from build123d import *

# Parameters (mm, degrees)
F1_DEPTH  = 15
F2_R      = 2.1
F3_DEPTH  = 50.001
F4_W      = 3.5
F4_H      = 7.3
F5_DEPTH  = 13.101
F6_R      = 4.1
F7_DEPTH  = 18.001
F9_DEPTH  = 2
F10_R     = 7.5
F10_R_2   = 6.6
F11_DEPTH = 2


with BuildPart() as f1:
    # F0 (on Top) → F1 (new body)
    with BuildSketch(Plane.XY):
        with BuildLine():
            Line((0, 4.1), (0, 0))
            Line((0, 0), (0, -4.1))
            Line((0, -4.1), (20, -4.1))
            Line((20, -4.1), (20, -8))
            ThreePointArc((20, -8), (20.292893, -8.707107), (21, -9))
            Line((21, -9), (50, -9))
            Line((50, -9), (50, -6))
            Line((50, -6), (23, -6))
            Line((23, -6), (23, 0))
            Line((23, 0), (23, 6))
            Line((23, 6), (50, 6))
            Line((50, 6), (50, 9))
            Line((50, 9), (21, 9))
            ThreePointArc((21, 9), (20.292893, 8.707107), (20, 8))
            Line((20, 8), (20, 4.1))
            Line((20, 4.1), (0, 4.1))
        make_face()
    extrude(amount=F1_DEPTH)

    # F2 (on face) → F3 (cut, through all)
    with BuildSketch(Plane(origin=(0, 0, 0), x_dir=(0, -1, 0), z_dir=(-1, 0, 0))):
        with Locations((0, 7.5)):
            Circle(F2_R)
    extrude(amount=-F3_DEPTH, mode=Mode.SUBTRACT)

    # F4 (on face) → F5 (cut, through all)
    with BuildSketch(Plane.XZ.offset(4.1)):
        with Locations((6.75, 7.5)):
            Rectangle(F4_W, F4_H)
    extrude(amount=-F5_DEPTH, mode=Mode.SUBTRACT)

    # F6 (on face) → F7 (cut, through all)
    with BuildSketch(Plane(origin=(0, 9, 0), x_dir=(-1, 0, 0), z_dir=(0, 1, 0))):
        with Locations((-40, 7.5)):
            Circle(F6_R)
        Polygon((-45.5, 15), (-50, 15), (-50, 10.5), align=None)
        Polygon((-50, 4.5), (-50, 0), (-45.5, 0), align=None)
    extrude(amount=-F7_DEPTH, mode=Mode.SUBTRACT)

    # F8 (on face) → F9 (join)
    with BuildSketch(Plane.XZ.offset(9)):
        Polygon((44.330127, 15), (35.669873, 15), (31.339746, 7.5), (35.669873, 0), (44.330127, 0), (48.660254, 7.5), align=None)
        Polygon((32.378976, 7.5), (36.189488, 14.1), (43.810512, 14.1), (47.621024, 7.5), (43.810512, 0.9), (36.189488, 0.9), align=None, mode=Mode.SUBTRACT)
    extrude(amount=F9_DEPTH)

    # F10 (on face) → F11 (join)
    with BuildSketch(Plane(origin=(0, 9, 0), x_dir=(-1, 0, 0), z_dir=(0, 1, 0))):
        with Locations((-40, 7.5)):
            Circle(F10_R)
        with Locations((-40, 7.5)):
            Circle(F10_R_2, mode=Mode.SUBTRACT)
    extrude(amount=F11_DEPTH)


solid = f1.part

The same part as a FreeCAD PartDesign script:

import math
import FreeCAD as App
import Part
import Sketcher
Q = App.Units.Quantity


def add_polygon(sketch, points):
    """Adds a closed chain of lines whose ends are joined by coincident constraints."""
    first, n = sketch.GeometryCount, len(points)
    for a, b in zip(points, points[1:] + points[:1]):
        sketch.addGeometry(Part.LineSegment(App.Vector(*a, 0), App.Vector(*b, 0)), False)
    for i in range(n):
        sketch.addConstraint(Sketcher.Constraint("Coincident", first + i, 2, first + (i + 1) % n, 1))

doc = App.newDocument("Part")
params = doc.addObject("Spreadsheet::Sheet", "Params")
for row, (alias, value) in enumerate([
    ("sketch1_radius", "0.999999 mm"),
    ("sketch1_width", "20 mm"),
    ("sketch1_width2", "29 mm"),
    ("sketch1_width3", "27 mm"),
    ("sketch1_height", "3 mm"),
    ("pad1_length", "15 mm"),
    ("sketch2_diameter", "4.2 mm"),
    ("sketch3_width", "3.5 mm"),
    ("sketch3_height", "7.3 mm"),
    ("sketch4_diameter", "8.2 mm"),
    ("sketch4_width", "4.5 mm"),
    ("pad2_length", "2 mm"),
    ("sketch6_diameter", "15 mm"),
    ("sketch6_diameter2", "13.2 mm"),
    ("pad3_length", "2 mm"),
], start=1):
    params.set(f"A{row}", alias)
    params.set(f"B{row}", "=" + value)
    params.setAlias(f"B{row}", alias)

body = doc.addObject("PartDesign::Body", "Body")

# Sketch on XY plane
sketch1 = body.newObject("Sketcher::SketchObject", "Sketch")
sketch1.AttachmentSupport = (doc.getObject("XY_Plane"), [""])
sketch1.MapMode = "FlatFace"
sketch1.addGeometry([
    Part.LineSegment(App.Vector(0, 4.1, 0), App.Vector(0, -4.1, 0)),  # 0
    Part.LineSegment(App.Vector(0, -4.1, 0), App.Vector(20, -4.1, 0)),  # 1
    Part.LineSegment(App.Vector(20, -4.1, 0), App.Vector(20, -8, 0)),  # 2
    Part.ArcOfCircle(Part.Circle(App.Vector(21, -8, 0), App.Vector(0, 0, 1), 1), math.radians(180), math.radians(270)),  # 3
    Part.LineSegment(App.Vector(21, -9, 0), App.Vector(50, -9, 0)),  # 4
    Part.LineSegment(App.Vector(50, -9, 0), App.Vector(50, -6, 0)),  # 5
    Part.LineSegment(App.Vector(50, -6, 0), App.Vector(23, -6, 0)),  # 6
    Part.LineSegment(App.Vector(23, -6, 0), App.Vector(23, 6, 0)),  # 7
    Part.LineSegment(App.Vector(23, 6, 0), App.Vector(50, 6, 0)),  # 8
    Part.LineSegment(App.Vector(50, 6, 0), App.Vector(50, 9, 0)),  # 9
    Part.LineSegment(App.Vector(50, 9, 0), App.Vector(21, 9, 0)),  # 10
    Part.ArcOfCircle(Part.Circle(App.Vector(21, 8, 0), App.Vector(0, 0, 1), 1), math.radians(90), math.radians(180)),  # 11
    Part.LineSegment(App.Vector(20, 8, 0), App.Vector(20, 4.1, 0)),  # 12
    Part.LineSegment(App.Vector(20, 4.1, 0), App.Vector(0, 4.1, 0)),  # 13
], False)
sketch1.addConstraint([
    Sketcher.Constraint("Coincident", 0, 2, 1, 1),
    Sketcher.Constraint("Coincident", 1, 2, 2, 1),
    Sketcher.Constraint("Tangent", 2, 2, 3, 1),
    Sketcher.Constraint("Tangent", 3, 2, 4, 1),
    Sketcher.Constraint("Coincident", 4, 2, 5, 1),
    Sketcher.Constraint("Coincident", 5, 2, 6, 1),
    Sketcher.Constraint("Coincident", 6, 2, 7, 1),
    Sketcher.Constraint("Coincident", 7, 2, 8, 1),
    Sketcher.Constraint("Coincident", 8, 2, 9, 1),
    Sketcher.Constraint("Coincident", 9, 2, 10, 1),
    Sketcher.Constraint("Tangent", 10, 2, 11, 1),
    Sketcher.Constraint("Tangent", 11, 2, 12, 1),
    Sketcher.Constraint("Coincident", 12, 2, 13, 1),
    Sketcher.Constraint("Coincident", 13, 2, 0, 1),
    Sketcher.Constraint("Vertical", 0),
    Sketcher.Constraint("Horizontal", 1),
    Sketcher.Constraint("Vertical", 2),
    Sketcher.Constraint("Horizontal", 4),
    Sketcher.Constraint("Vertical", 5),
    Sketcher.Constraint("Horizontal", 6),
    Sketcher.Constraint("Vertical", 7),
    Sketcher.Constraint("Horizontal", 8),
    Sketcher.Constraint("Vertical", 9),
    Sketcher.Constraint("Horizontal", 10),
    Sketcher.Constraint("Vertical", 12),
    Sketcher.Constraint("Horizontal", 13),
    Sketcher.Constraint("Equal", 3, 11),
    Sketcher.Constraint("Symmetric", 0, 2, 13, 2, -1, 1),
    Sketcher.Constraint("Symmetric", 3, 3, 11, 3, -1),
    Sketcher.Constraint("Symmetric", 5, 2, 8, 2, -1),
    Sketcher.Constraint("Radius", 3, 0.999999),
    Sketcher.Constraint("DistanceX", 1, 1, 1, 2, 20.0),
    Sketcher.Constraint("DistanceX", 4, 1, 4, 2, 29.0),
    Sketcher.Constraint("DistanceX", 6, 2, 6, 1, 27.0),
    Sketcher.Constraint("DistanceY", 5, 1, 5, 2, 3.0),
    Sketcher.Constraint("DistanceY", 7, 1, 7, 2, 12.0),
    Sketcher.Constraint("DistanceY", 0, 2, 0, 1, 8.2),
])
sketch1.setExpression("Constraints[30]", "Params.sketch1_radius")
sketch1.setExpression("Constraints[31]", "Params.sketch1_width")
sketch1.setExpression("Constraints[32]", "Params.sketch1_width2")
sketch1.setExpression("Constraints[33]", "Params.sketch1_width3")
sketch1.setExpression("Constraints[34]", "Params.sketch1_height")
pad1 = body.newObject("PartDesign::Pad", "Pad")
pad1.Profile = sketch1
pad1.setExpression("Length", "Params.pad1_length")

# Sketch on YZ plane
sketch2 = body.newObject("Sketcher::SketchObject", "Sketch001")
sketch2.AttachmentSupport = (doc.getObject("YZ_Plane"), [""])
sketch2.MapMode = "FlatFace"
sketch2.addGeometry(Part.Circle(App.Vector(0, 7.5, 0), App.Vector(0, 0, 1), 2.1), False)
sketch2.addConstraint([
    Sketcher.Constraint("PointOnObject", 0, 3, -2),
    Sketcher.Constraint("Diameter", 0, 4.2),
    Sketcher.Constraint("DistanceY", -1, 1, 0, 3, 7.5),
])
sketch2.setExpression("Constraints[1]", "Params.sketch2_diameter")
pocket1 = body.newObject("PartDesign::Pocket", "Pocket")
pocket1.Profile = sketch2
pocket1.Type = "ThroughAll"
pocket1.Reversed = True

# Sketch on XZ plane
sketch3 = body.newObject("Sketcher::SketchObject", "Sketch002")
sketch3.AttachmentSupport = (doc.getObject("XZ_Plane"), [""])
sketch3.MapMode = "FlatFace"
sketch3.AttachmentOffset = App.Placement(App.Vector(0, 0, 4.1), App.Rotation())
add_polygon(sketch3, [(5, 11.2), (5, 3.9), (8.5, 3.9), (8.5, 11.2)])  # lines 0-3
sketch3.addConstraint([
    Sketcher.Constraint("Vertical", 0),
    Sketcher.Constraint("Horizontal", 1),
    Sketcher.Constraint("Vertical", 2),
    Sketcher.Constraint("Horizontal", 3),
    Sketcher.Constraint("DistanceX", 1, 1, 1, 2, 3.5),
    Sketcher.Constraint("DistanceY", 0, 2, 0, 1, 7.3),
    Sketcher.Constraint("DistanceX", -1, 1, 0, 2, 5.0),
    Sketcher.Constraint("DistanceY", -1, 1, 0, 2, 3.85),
])
sketch3.setExpression("Constraints[8]", "Params.sketch3_width")
sketch3.setExpression("Constraints[9]", "Params.sketch3_height")
pocket2 = body.newObject("PartDesign::Pocket", "Pocket001")
pocket2.Profile = sketch3
pocket2.Type = "ThroughAll"

# Sketch on XZ plane
sketch4 = body.newObject("Sketcher::SketchObject", "Sketch003")
sketch4.AttachmentSupport = (doc.getObject("XZ_Plane"), [""])
sketch4.MapMode = "FlatFace"
sketch4.AttachmentOffset = App.Placement(App.Vector(0, 0, -9), App.Rotation())
sketch4.addGeometry(Part.Circle(App.Vector(40, 7.5, 0), App.Vector(0, 0, 1), 4.1), False)  # 0
add_polygon(sketch4, [(45.5, 15), (50, 15), (50, 10.5)])  # lines 1-3
add_polygon(sketch4, [(50, 4.5), (50, 0), (45.5, 0)])  # lines 4-6
sketch4.addConstraint([
    Sketcher.Constraint("Horizontal", 1),
    Sketcher.Constraint("Vertical", 2),
    Sketcher.Constraint("Vertical", 4),
    Sketcher.Constraint("Horizontal", 5),
    Sketcher.Constraint("PointOnObject", 4, 2, -1),
    Sketcher.Constraint("Perpendicular", 3, 6),
    Sketcher.Constraint("Vertical", 2, 2, 4, 2),
    Sketcher.Constraint("Vertical", 3, 2, 5, 2),
    Sketcher.Constraint("Equal", 5, 2),
    Sketcher.Constraint("Diameter", 0, 8.2),
    Sketcher.Constraint("DistanceX", 1, 1, 1, 2, 4.5),
    Sketcher.Constraint("DistanceX", -1, 1, 0, 3, 40.0),
    Sketcher.Constraint("DistanceX", -1, 1, 1, 2, 50.0),
    Sketcher.Constraint("DistanceY", -1, 1, 1, 2, 15.0),
    Sketcher.Constraint("DistanceY", 0, 3, 2, 2, 3.0),
])
sketch4.setExpression("Constraints[15]", "Params.sketch4_diameter")
sketch4.setExpression("Constraints[16]", "Params.sketch4_width")
pocket3 = body.newObject("PartDesign::Pocket", "Pocket002")
pocket3.Profile = sketch4
pocket3.Type = "ThroughAll"
pocket3.Reversed = True

# Sketch on XZ plane
sketch5 = body.newObject("Sketcher::SketchObject", "Sketch004")
sketch5.AttachmentSupport = (doc.getObject("XZ_Plane"), [""])
sketch5.MapMode = "FlatFace"
sketch5.AttachmentOffset = App.Placement(App.Vector(0, 0, 9), App.Rotation())
add_polygon(sketch5, [(44, 15), (36, 15), (31, 8), (36, 0), (44, 0), (49, 8)])  # lines 0-5
add_polygon(sketch5, [(36, 1), (32, 8), (36, 14), (44, 14), (48, 8), (44, 1)])  # lines 6-11
sketch5.addConstraint([
    Sketcher.Constraint("Horizontal", 0),
    Sketcher.Constraint("Horizontal", 3),
    Sketcher.Constraint("Horizontal", 8),
    Sketcher.Constraint("Horizontal", 11),
    Sketcher.Constraint("PointOnObject", 2, 2, -1),
    Sketcher.Constraint("Parallel", 1, 4),
    Sketcher.Constraint("Parallel", 2, 5),
    Sketcher.Constraint("Parallel", 5, 6),
    Sketcher.Constraint("Parallel", 4, 7),
    Sketcher.Constraint("Parallel", 6, 9),
    Sketcher.Constraint("Parallel", 7, 10),
    Sketcher.Constraint("Horizontal", 1, 2, 4, 2),
    Sketcher.Constraint("Horizontal", 4, 2, 6, 2),
    Sketcher.Constraint("Horizontal", 6, 2, 9, 2),
    Sketcher.Constraint("Vertical", 0, 2, 2, 2),
    Sketcher.Constraint("Vertical", 3, 2, 5, 2),
    Sketcher.Constraint("Vertical", 8, 2, 10, 2),
    Sketcher.Constraint("Angle", 1, Q("-120 deg")),
    Sketcher.Constraint("DistanceY", -1, 1, 0, 2, 15.0),
    Sketcher.Constraint("DistanceY", -1, 1, 7, 2, 14.1),
    Sketcher.Constraint("DistanceX", 0, 2, 0, 1, 8.660254),
    Sketcher.Constraint("DistanceX", 8, 1, 8, 2, 7.621024),
    Sketcher.Constraint("DistanceX", 1, 2, 6, 2, 1.03923),
    Sketcher.Constraint("DistanceX", -1, 1, 0, 2, 35.669873),
])
pad2 = body.newObject("PartDesign::Pad", "Pad001")
pad2.Profile = sketch5
pad2.setExpression("Length", "Params.pad2_length")

# Sketch on XZ plane
sketch6 = body.newObject("Sketcher::SketchObject", "Sketch005")
sketch6.AttachmentSupport = (doc.getObject("XZ_Plane"), [""])
sketch6.MapMode = "FlatFace"
sketch6.AttachmentOffset = App.Placement(App.Vector(0, 0, -9), App.Rotation())
sketch6.addGeometry([
    Part.Circle(App.Vector(40, 8, 0), App.Vector(0, 0, 1), 8),
    Part.Circle(App.Vector(40, 8, 0), App.Vector(0, 0, 1), 7),
], False)
sketch6.addConstraint([
    Sketcher.Constraint("Coincident", 1, 3, 0, 3),
    Sketcher.Constraint("Diameter", 0, 15.0),
    Sketcher.Constraint("Diameter", 1, 13.2),
    Sketcher.Constraint("DistanceX", -1, 1, 0, 3, 40.0),
    Sketcher.Constraint("DistanceY", -1, 1, 0, 3, 7.5),
])
sketch6.setExpression("Constraints[1]", "Params.sketch6_diameter")
sketch6.setExpression("Constraints[2]", "Params.sketch6_diameter2")
pad3 = body.newObject("PartDesign::Pad", "Pad002")
pad3.Profile = sketch6
pad3.setExpression("Length", "Params.pad3_length")
pad3.Reversed = True

doc.recompute()
